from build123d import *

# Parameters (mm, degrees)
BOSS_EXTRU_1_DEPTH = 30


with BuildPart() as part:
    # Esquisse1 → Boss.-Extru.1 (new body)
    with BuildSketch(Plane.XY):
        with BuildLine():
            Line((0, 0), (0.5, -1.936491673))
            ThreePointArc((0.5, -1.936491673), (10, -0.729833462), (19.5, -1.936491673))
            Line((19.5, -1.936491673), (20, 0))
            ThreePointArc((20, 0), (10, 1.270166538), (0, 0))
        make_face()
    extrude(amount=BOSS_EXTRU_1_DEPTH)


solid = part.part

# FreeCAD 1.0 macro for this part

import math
import FreeCAD as App
import Part
import Sketcher

doc = App.newDocument("Part")
body = doc.addObject("PartDesign::Body", "Body")

# Sketch on XY plane
sketch1 = body.newObject("Sketcher::SketchObject", "Sketch")
sketch1.AttachmentSupport = (doc.getObject("XY_Plane"), [""])
sketch1.MapMode = "FlatFace"
sketch1.addGeometry([
    Part.LineSegment(App.Vector(0, 0, 0), App.Vector(0.5, -1.9, 0)),
    Part.ArcOfCircle(Part.Circle(App.Vector(10, -38.7, 0), App.Vector(0, 0, 1), 38), math.radians(76), math.radians(104)),
    Part.LineSegment(App.Vector(19.5, -1.9, 0), App.Vector(20, 0, 0)),
    Part.ArcOfCircle(Part.Circle(App.Vector(10, -38.7, 0), App.Vector(0, 0, 1), 40), math.radians(76), math.radians(104)),
], False)
sketch1.addConstraint([
    Sketcher.Constraint("Coincident", 0, 2, 1, 2),
    Sketcher.Constraint("Coincident", 1, 1, 2, 1),
    Sketcher.Constraint("Coincident", 2, 2, 3, 1),
    Sketcher.Constraint("Coincident", 3, 2, 0, 1),
    Sketcher.Constraint("Coincident", 3, 2, -1, 1),
    Sketcher.Constraint("Coincident", 3, 3, 1, 3),
    Sketcher.Constraint("PointOnObject", 2, 2, -1),
    Sketcher.Constraint("Horizontal", 0, 2, 1, 1),
    Sketcher.Constraint("Radius", 1, 38.0),
    Sketcher.Constraint("Radius", 3, 40.0),
    Sketcher.Constraint("DistanceX", -1, 1, 1, 3, 10.0),
    Sketcher.Constraint("DistanceX", 0, 2, 1, 1, 19.0),
])
pad1 = body.newObject("PartDesign::Pad", "Pad")
pad1.Profile = sketch1
pad1.Length = 30

doc.recompute()
